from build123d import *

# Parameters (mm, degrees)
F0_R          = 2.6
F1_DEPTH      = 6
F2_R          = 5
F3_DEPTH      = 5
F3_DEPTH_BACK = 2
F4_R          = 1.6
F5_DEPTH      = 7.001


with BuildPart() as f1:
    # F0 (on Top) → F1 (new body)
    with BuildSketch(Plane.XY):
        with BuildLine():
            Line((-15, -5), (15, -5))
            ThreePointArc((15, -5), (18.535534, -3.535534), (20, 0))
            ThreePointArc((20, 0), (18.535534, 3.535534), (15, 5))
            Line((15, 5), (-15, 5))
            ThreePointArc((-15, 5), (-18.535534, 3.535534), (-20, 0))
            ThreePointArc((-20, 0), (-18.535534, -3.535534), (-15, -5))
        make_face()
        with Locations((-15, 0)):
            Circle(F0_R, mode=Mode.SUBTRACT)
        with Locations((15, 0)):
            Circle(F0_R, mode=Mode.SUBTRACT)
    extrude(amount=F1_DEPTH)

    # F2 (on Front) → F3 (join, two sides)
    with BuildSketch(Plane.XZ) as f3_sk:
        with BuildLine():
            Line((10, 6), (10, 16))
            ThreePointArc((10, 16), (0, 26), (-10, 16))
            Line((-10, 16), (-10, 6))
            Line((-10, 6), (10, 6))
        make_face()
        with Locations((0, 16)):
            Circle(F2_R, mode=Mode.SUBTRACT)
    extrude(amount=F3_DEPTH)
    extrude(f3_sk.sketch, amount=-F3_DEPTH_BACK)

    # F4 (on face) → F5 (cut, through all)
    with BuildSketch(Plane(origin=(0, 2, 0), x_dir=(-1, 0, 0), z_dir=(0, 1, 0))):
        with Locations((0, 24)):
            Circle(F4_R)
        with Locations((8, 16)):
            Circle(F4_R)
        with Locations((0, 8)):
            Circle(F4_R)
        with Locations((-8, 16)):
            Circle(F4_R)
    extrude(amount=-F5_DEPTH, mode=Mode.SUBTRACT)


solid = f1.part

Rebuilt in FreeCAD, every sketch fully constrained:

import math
import FreeCAD as App
import Part
import Sketcher

doc = App.newDocument("Part")
body = doc.addObject("PartDesign::Body", "Body")

sketch1 = body.newObject("Sketcher::SketchObject", "Sketch")
sketch1.AttachmentSupport = (doc.getObject("XY_Plane"), [""])
sketch1.MapMode = "FlatFace"
sketch1.addGeometry([
    Part.LineSegment(App.Vector(-15, -5, 0), App.Vector(15, -5, 0)),
    Part.ArcOfCircle(Part.Circle(App.Vector(15, 0, 0), App.Vector(0, 0, 1), 5), math.radians(-90), math.radians(0)),
    Part.ArcOfCircle(Part.Circle(App.Vector(15, 0, 0), App.Vector(0, 0, 1), 5), math.radians(0), math.radians(90)),
    Part.LineSegment(App.Vector(15, 5, 0), App.Vector(-15, 5, 0)),
    Part.ArcOfCircle(Part.Circle(App.Vector(-15, 0, 0), App.Vector(0, 0, 1), 5), math.radians(90), math.radians(180)),
    Part.ArcOfCircle(Part.Circle(App.Vector(-15, 0, 0), App.Vector(0, 0, 1), 5), math.radians(180), math.radians(270)),
    Part.Circle(App.Vector(-15, 0, 0), App.Vector(0, 0, 1), 2.6),
    Part.Circle(App.Vector(15, 0, 0), App.Vector(0, 0, 1), 2.6),
], False)
sketch1.addConstraint([
    Sketcher.Constraint("Tangent", 0, 2, 1, 1),
    Sketcher.Constraint("Tangent", 1, 2, 2, 1),
    Sketcher.Constraint("Tangent", 2, 2, 3, 1),
    Sketcher.Constraint("Tangent", 3, 2, 4, 1),
    Sketcher.Constraint("Tangent", 4, 2, 5, 1),
    Sketcher.Constraint("Tangent", 5, 2, 0, 1),
    Sketcher.Constraint("Horizontal", 0),
    Sketcher.Constraint("Horizontal", 3),
    Sketcher.Constraint("Coincident", 6, 3, 4, 3),
    Sketcher.Constraint("Coincident", 7, 3, 1, 3),
    Sketcher.Constraint("Equal", 1, 2),
    Sketcher.Constraint("Equal", 2, 4),
    Sketcher.Constraint("Equal", 6, 7),
    Sketcher.Constraint("Symmetric", 1, 3, 4, 3, -1, 1),
    Sketcher.Constraint("PointOnObject", 1, 2, -1),
    Sketcher.Constraint("PointOnObject", 4, 2, -1),
    Sketcher.Constraint("Radius", 1, 5.0),
    Sketcher.Constraint("Diameter", 6, 5.2),
    Sketcher.Constraint("DistanceX", 0, 1, 0, 2, 30.0),
])
pad1 = body.newObject("PartDesign::Pad", "Pad")
pad1.Profile = sketch1
pad1.Length = 6

sketch2 = body.newObject("Sketcher::SketchObject", "Sketch001")
sketch2.AttachmentSupport = (doc.getObject("XZ_Plane"), [""])
sketch2.MapMode = "FlatFace"
sketch2.addGeometry([
    Part.LineSegment(App.Vector(10, 6, 0), App.Vector(10, 16, 0)),
    Part.ArcOfCircle(Part.Circle(App.Vector(0, 16, 0), App.Vector(0, 0, 1), 10), math.radians(0), math.radians(180)),
    Part.LineSegment(App.Vector(-10, 16, 0), App.Vector(-10, 6, 0)),
    Part.LineSegment(App.Vector(-10, 6, 0), App.Vector(10, 6, 0)),
    Part.Circle(App.Vector(0, 16, 0), App.Vector(0, 0, 1), 5),
], False)
sketch2.addConstraint([
    Sketcher.Constraint("Tangent", 0, 2, 1, 1),
    Sketcher.Constraint("Tangent", 1, 2, 2, 1),
    Sketcher.Constraint("Coincident", 2, 2, 3, 1),
    Sketcher.Constraint("Coincident", 3, 2, 0, 1),
    Sketcher.Constraint("Vertical", 0),
    Sketcher.Constraint("Vertical", 2),
    Sketcher.Constraint("Horizontal", 3),
    Sketcher.Constraint("Coincident", 4, 3, 1, 3),
    Sketcher.Constraint("PointOnObject", 1, 3, -2),
    Sketcher.Constraint("Diameter", 4, 10.0),
    Sketcher.Constraint("Radius", 1, 10.0),
    Sketcher.Constraint("DistanceY", 0, 1, 0, 2, 10.0),
    Sketcher.Constraint("DistanceY", -1, 1, 1, 3, 16.0),
])
pad2 = body.newObject("PartDesign::Pad", "Pad001")
pad2.Profile = sketch2
pad2.Type = "TwoLengths"
pad2.Length = 5
pad2.Length2 = 2

sketch3 = body.newObject("Sketcher::SketchObject", "Sketch002")
sketch3.AttachmentSupport = (doc.getObject("XZ_Plane"), [""])
sketch3.MapMode = "FlatFace"
sketch3.AttachmentOffset = App.Placement(App.Vector(0, 0, -2), App.Rotation())
sketch3.addGeometry([
    Part.Circle(App.Vector(0, 24, 0), App.Vector(0, 0, 1), 1.6),
    Part.Circle(App.Vector(-8, 16, 0), App.Vector(0, 0, 1), 1.6),
    Part.Circle(App.Vector(0, 8, 0), App.Vector(0, 0, 1), 1.6),
    Part.Circle(App.Vector(8, 16, 0), App.Vector(0, 0, 1), 1.6),
], False)
sketch3.addConstraint([
    Sketcher.Constraint("Equal", 0, 1),
    Sketcher.Constraint("Equal", 1, 2),
    Sketcher.Constraint("Equal", 2, 3),
    Sketcher.Constraint("Symmetric", 1, 3, 3, 3, -2),
    Sketcher.Constraint("PointOnObject", 0, 3, -2),
    Sketcher.Constraint("PointOnObject", 2, 3, -2),
    Sketcher.Constraint("Diameter", 0, 3.2),
    Sketcher.Constraint("DistanceY", -1, 1, 0, 3, 24.0),
    Sketcher.Constraint("DistanceX", 1, 3, -1, 1, 8.0),
    Sketcher.Constraint("DistanceY", -1, 1, 1, 3, 16.0),
    Sketcher.Constraint("DistanceY", -1, 1, 2, 3, 8.0),
])
pocket1 = body.newObject("PartDesign::Pocket", "Pocket")
pocket1.Profile = sketch3
pocket1.Type = "ThroughAll"
pocket1.Reversed = True

doc.recompute()
